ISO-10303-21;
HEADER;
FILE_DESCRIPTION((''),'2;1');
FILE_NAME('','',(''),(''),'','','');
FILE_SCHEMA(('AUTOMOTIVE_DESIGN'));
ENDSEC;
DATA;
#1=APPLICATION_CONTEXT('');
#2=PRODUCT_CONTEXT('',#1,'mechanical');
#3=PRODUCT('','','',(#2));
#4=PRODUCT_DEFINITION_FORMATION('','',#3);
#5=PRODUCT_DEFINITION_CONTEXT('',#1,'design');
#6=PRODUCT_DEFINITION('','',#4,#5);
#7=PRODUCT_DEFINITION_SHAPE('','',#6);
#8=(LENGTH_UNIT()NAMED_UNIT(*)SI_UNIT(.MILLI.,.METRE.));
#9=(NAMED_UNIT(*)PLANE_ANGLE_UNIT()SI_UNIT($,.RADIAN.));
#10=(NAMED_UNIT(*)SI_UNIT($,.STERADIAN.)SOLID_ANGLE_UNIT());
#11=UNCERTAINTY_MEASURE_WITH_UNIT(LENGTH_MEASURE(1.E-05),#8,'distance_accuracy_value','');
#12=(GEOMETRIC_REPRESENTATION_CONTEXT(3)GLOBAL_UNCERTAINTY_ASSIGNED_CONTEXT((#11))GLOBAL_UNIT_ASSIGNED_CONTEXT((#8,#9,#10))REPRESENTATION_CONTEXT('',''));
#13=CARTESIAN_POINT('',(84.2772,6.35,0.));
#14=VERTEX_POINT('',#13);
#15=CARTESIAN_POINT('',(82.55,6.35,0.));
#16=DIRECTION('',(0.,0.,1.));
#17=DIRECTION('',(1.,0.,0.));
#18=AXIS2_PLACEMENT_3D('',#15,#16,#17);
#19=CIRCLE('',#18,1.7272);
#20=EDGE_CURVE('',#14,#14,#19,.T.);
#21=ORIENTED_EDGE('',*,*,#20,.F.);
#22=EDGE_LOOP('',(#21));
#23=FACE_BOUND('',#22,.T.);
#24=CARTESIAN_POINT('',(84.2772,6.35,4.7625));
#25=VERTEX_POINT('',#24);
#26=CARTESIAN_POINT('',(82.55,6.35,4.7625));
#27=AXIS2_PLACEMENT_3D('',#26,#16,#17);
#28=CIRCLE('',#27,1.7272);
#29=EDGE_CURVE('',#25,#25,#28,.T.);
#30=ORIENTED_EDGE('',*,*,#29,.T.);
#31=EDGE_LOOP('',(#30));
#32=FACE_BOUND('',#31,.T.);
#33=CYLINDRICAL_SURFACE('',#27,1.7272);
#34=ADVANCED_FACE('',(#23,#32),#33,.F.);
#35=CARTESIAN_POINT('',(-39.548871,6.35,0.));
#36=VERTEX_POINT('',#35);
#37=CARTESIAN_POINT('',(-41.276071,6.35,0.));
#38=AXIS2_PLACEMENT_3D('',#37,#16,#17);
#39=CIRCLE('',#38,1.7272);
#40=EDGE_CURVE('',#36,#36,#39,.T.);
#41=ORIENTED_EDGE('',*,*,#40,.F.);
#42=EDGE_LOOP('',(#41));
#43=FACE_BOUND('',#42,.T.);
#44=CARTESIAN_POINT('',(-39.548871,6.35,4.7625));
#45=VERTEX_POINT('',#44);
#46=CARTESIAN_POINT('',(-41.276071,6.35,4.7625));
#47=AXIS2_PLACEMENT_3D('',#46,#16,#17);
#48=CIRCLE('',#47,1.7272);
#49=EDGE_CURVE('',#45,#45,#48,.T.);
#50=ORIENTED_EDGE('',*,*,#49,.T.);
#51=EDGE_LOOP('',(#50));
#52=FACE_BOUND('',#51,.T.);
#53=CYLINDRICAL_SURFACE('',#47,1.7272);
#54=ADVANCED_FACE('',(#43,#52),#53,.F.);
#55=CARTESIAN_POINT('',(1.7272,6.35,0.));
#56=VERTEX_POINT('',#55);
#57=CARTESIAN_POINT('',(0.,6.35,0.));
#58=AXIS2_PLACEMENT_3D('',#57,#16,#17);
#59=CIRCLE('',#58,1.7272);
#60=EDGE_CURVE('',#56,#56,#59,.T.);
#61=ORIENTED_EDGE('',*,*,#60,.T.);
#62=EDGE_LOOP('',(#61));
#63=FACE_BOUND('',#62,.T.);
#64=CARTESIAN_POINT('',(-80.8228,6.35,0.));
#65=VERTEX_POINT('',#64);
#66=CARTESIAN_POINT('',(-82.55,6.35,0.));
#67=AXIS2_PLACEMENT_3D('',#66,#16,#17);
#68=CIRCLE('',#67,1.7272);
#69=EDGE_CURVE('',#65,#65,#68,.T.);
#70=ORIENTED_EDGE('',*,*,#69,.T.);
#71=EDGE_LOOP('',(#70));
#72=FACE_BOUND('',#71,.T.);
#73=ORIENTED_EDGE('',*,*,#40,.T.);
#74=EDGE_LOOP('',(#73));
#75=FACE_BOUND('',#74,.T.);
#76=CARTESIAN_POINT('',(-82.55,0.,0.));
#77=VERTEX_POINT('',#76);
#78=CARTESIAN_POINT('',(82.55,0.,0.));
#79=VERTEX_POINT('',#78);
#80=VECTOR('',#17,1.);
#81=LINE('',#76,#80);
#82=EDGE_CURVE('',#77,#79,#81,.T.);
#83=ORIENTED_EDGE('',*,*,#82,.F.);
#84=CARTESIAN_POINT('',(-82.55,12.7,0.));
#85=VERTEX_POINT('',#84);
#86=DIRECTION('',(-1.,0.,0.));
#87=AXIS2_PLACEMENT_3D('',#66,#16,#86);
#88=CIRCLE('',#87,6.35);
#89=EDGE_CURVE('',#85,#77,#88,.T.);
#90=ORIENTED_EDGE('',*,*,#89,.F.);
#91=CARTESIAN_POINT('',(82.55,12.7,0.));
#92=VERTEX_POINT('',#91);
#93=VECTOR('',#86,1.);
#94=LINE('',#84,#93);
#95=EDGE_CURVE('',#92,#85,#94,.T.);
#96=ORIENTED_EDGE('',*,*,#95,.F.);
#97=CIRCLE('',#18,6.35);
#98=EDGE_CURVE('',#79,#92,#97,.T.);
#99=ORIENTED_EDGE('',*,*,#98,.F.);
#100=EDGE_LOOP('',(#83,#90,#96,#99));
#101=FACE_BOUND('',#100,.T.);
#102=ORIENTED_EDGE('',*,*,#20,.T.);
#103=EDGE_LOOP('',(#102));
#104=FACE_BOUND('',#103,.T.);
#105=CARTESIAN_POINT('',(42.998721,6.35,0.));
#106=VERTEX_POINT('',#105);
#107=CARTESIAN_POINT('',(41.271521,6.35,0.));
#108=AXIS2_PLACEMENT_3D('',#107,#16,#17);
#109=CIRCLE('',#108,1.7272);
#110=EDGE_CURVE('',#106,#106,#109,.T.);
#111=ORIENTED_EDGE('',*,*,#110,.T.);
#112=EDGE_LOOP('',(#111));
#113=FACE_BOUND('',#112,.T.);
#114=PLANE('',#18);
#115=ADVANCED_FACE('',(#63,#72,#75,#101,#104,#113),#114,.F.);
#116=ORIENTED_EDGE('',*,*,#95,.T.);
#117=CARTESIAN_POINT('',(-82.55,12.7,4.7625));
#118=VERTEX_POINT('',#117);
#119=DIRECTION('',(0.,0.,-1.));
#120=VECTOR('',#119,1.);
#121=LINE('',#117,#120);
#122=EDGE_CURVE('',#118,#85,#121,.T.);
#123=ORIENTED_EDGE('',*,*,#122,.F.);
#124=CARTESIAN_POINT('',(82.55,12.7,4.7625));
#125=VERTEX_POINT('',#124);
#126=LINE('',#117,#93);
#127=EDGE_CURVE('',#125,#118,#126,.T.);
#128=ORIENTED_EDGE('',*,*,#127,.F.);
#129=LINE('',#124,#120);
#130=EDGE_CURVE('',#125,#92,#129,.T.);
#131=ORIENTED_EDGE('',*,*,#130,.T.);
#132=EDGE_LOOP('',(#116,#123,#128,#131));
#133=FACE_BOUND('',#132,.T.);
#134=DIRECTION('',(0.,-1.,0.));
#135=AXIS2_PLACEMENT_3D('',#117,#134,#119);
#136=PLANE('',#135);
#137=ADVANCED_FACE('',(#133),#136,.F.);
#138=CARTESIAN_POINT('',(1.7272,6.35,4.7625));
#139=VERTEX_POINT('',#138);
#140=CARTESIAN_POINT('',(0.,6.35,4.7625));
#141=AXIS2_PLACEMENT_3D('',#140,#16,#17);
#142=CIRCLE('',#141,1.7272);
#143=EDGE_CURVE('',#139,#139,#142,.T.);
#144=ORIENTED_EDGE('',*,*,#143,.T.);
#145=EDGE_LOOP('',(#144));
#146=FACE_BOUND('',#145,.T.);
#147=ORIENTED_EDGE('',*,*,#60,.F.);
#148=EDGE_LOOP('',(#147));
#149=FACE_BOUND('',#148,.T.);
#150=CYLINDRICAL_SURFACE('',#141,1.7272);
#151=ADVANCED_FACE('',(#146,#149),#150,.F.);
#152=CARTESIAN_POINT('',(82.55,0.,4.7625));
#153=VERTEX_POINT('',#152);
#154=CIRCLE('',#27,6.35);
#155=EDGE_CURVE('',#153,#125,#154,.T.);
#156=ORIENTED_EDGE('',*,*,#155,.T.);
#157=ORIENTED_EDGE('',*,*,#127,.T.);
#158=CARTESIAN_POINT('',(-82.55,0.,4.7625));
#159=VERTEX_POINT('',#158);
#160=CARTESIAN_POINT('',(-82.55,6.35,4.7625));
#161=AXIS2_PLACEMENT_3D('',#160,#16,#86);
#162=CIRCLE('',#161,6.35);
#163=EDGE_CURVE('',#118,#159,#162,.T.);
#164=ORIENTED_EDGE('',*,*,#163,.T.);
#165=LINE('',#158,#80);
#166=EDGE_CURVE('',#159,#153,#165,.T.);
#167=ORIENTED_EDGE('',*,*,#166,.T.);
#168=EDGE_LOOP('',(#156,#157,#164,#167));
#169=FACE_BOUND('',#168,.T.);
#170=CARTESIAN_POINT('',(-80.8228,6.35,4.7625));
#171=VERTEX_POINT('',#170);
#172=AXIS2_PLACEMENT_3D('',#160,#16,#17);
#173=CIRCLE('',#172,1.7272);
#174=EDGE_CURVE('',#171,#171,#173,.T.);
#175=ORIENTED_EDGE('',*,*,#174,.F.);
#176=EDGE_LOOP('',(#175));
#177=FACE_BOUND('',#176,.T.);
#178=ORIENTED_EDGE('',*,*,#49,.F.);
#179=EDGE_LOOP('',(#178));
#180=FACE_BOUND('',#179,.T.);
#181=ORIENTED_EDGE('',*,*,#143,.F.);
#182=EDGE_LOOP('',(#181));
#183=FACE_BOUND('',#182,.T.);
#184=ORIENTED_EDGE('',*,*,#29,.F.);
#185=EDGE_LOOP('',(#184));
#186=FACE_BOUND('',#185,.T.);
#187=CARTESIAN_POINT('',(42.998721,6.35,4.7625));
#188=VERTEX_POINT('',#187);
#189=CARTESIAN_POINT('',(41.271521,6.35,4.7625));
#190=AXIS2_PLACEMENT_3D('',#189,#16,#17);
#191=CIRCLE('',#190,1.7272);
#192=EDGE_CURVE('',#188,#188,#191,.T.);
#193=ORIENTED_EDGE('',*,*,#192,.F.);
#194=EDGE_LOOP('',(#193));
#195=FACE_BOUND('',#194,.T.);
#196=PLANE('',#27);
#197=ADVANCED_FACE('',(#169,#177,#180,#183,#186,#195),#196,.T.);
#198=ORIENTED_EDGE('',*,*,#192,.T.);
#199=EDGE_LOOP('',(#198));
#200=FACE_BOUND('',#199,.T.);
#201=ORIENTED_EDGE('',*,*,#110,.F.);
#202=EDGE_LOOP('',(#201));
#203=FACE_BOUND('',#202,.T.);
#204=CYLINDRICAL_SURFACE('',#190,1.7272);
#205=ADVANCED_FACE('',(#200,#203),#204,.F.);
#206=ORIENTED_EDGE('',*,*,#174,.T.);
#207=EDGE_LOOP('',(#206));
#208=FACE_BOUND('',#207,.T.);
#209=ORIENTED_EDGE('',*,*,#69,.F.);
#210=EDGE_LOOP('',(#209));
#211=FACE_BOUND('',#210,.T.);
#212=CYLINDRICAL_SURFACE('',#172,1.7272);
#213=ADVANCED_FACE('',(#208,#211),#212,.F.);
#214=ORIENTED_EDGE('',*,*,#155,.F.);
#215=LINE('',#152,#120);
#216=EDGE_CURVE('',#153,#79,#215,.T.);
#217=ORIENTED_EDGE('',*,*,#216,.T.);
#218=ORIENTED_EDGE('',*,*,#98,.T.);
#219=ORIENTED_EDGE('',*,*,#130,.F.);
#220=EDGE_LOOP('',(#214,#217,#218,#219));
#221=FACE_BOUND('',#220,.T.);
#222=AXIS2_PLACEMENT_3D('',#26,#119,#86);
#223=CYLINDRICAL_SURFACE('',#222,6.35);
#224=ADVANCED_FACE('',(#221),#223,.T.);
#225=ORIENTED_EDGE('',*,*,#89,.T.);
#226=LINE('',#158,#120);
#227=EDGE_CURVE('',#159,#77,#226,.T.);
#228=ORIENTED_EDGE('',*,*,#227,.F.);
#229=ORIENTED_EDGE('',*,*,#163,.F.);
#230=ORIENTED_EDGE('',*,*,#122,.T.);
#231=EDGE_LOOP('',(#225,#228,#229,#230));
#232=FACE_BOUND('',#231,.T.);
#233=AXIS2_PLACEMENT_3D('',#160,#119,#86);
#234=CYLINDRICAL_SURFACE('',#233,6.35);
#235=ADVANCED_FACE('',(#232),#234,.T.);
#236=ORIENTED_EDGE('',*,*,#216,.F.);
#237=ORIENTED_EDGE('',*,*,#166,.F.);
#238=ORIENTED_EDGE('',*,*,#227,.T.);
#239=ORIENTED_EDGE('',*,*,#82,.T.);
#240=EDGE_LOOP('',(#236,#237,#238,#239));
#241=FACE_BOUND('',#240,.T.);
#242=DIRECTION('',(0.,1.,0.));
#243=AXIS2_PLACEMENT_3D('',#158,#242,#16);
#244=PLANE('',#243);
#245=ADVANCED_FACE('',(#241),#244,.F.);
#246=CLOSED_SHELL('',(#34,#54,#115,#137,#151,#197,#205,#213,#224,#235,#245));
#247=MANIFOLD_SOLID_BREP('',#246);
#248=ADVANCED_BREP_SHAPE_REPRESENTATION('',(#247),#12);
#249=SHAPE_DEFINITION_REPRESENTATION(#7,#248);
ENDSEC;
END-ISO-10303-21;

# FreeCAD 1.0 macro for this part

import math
import FreeCAD as App
import Part
import Sketcher
from FreeCAD import Vector
Q = App.Units.Quantity

doc = App.newDocument("Part")
params = doc.addObject("Spreadsheet::Sheet", "Params")
for row, (alias, value) in enumerate([
    ("sketch1_radius", "0.25 in"),
    ("sketch1_width", "6.5 in"),
    ("pad1_length", "0.1875 in"),
    ("sketch2_diameter", "0.136 in"),
    ("hole_diameter", "0.136 in"),
    ("hole_depth", "0.48 in"),
], start=1):
    params.set(f"A{row}", alias)
    params.set(f"B{row}", "=" + value)
    params.setAlias(f"B{row}", alias)

body = doc.addObject("PartDesign::Body", "Body")

# Sketch on XY plane
sketch1 = doc.addObject("Sketcher::SketchObject", "Sketch")
body.addObject(sketch1)
sketch1.AttachmentSupport = (doc.XY_Plane, [""])
sketch1.MapMode = "FlatFace"
sketch1.addGeometry([
    Part.LineSegment(Vector(-83, 0, 0), Vector(83, 0, 0)),
    Part.ArcOfCircle(Part.Circle(Vector(83, 6, 0), Vector(0, 0, 1), 6), math.radians(-90), math.radians(90)),
    Part.LineSegment(Vector(83, 13, 0), Vector(-83, 13, 0)),
    Part.ArcOfCircle(Part.Circle(Vector(-83, 6, 0), Vector(0, 0, 1), 6), math.radians(90), math.radians(270)),
], False)
sketch1.addConstraint([
    Sketcher.Constraint("Tangent", 0, 2, 1, 1),
    Sketcher.Constraint("Tangent", 1, 2, 2, 1),
    Sketcher.Constraint("Tangent", 2, 2, 3, 1),
    Sketcher.Constraint("Tangent", 3, 2, 0, 1),
    Sketcher.Constraint("Horizontal", 0),
    Sketcher.Constraint("Horizontal", 2),
    Sketcher.Constraint("Symmetric", 0, 2, 3, 2, -1, 1),
    Sketcher.Constraint("Radius", 1, Q("0.25 in")),
    Sketcher.Constraint("DistanceX", 0, 1, 0, 2, Q("6.5 in")),
])
sketch1.setExpression("Constraints[7]", "Params.sketch1_radius")
sketch1.setExpression("Constraints[8]", "Params.sketch1_width")
pad1 = doc.addObject("PartDesign::Pad", "Pad")
body.addObject(pad1)
pad1.Profile = sketch1
pad1.setExpression("Length", "Params.pad1_length")

# Sketch on XY plane
sketch2 = doc.addObject("Sketcher::SketchObject", "Sketch001")
body.addObject(sketch2)
sketch2.AttachmentSupport = (doc.XY_Plane, [""])
sketch2.MapMode = "FlatFace"
sketch2.AttachmentOffset = App.Placement(Vector(0, 0, 0.1875 * 25.4), App.Rotation())
sketch2.addGeometry([
    Part.Circle(Vector(-82.5, 6.3, 0), Vector(0, 0, 1), 1.7),  # 0
    Part.Circle(Vector(82.5, 6.3, 0), Vector(0, 0, 1), 1.7),  # 1
    Part.Circle(Vector(0, 6.3, 0), Vector(0, 0, 1), 1.7),  # 2
    Part.Circle(Vector(41.3, 6.3, 0), Vector(0, 0, 1), 1.7),  # 3
    Part.Circle(Vector(-41.3, 6.3, 0), Vector(0, 0, 1), 1.7),  # 4
], False)
sketch2.addConstraint([
    Sketcher.Constraint("Equal", 0, 1),
    Sketcher.Constraint("Equal", 1, 2),
    Sketcher.Constraint("Equal", 2, 3),
    Sketcher.Constraint("Equal", 3, 4),
    Sketcher.Constraint("Symmetric", 0, 3, 1, 3, -2),
    Sketcher.Constraint("PointOnObject", 2, 3, -2),
    Sketcher.Constraint("Horizontal", 1, 3, 2, 3),
    Sketcher.Constraint("Horizontal", 2, 3, 3, 3),
    Sketcher.Constraint("Horizontal", 3, 3, 4, 3),
    Sketcher.Constraint("Diameter", 0, Q("0.136 in")),
    Sketcher.Constraint("DistanceX", 0, 3, 1, 3, Q("6.5 in")),
    Sketcher.Constraint("DistanceY", -1, 1, 0, 3, Q("0.25 in")),
    Sketcher.Constraint("DistanceX", -1, 1, 3, 3, Q("41.271521 mm")),
    Sketcher.Constraint("DistanceX", 4, 3, -1, 1, Q("41.276071 mm")),
])
sketch2.setExpression("Constraints[9]", "Params.sketch2_diameter")
doc.recompute()
hole = doc.addObject("PartDesign::Hole", "Hole")
body.addObject(hole)
hole.Profile = sketch2
hole.ThreadType = "None"
hole.setExpression("Diameter", "Params.hole_diameter")
hole.DepthType = "Dimension"
hole.setExpression("Depth", "Params.hole_depth")
hole.DrillPoint = "Angled"
hole.DrillPointAngle = 118

doc.recompute()
